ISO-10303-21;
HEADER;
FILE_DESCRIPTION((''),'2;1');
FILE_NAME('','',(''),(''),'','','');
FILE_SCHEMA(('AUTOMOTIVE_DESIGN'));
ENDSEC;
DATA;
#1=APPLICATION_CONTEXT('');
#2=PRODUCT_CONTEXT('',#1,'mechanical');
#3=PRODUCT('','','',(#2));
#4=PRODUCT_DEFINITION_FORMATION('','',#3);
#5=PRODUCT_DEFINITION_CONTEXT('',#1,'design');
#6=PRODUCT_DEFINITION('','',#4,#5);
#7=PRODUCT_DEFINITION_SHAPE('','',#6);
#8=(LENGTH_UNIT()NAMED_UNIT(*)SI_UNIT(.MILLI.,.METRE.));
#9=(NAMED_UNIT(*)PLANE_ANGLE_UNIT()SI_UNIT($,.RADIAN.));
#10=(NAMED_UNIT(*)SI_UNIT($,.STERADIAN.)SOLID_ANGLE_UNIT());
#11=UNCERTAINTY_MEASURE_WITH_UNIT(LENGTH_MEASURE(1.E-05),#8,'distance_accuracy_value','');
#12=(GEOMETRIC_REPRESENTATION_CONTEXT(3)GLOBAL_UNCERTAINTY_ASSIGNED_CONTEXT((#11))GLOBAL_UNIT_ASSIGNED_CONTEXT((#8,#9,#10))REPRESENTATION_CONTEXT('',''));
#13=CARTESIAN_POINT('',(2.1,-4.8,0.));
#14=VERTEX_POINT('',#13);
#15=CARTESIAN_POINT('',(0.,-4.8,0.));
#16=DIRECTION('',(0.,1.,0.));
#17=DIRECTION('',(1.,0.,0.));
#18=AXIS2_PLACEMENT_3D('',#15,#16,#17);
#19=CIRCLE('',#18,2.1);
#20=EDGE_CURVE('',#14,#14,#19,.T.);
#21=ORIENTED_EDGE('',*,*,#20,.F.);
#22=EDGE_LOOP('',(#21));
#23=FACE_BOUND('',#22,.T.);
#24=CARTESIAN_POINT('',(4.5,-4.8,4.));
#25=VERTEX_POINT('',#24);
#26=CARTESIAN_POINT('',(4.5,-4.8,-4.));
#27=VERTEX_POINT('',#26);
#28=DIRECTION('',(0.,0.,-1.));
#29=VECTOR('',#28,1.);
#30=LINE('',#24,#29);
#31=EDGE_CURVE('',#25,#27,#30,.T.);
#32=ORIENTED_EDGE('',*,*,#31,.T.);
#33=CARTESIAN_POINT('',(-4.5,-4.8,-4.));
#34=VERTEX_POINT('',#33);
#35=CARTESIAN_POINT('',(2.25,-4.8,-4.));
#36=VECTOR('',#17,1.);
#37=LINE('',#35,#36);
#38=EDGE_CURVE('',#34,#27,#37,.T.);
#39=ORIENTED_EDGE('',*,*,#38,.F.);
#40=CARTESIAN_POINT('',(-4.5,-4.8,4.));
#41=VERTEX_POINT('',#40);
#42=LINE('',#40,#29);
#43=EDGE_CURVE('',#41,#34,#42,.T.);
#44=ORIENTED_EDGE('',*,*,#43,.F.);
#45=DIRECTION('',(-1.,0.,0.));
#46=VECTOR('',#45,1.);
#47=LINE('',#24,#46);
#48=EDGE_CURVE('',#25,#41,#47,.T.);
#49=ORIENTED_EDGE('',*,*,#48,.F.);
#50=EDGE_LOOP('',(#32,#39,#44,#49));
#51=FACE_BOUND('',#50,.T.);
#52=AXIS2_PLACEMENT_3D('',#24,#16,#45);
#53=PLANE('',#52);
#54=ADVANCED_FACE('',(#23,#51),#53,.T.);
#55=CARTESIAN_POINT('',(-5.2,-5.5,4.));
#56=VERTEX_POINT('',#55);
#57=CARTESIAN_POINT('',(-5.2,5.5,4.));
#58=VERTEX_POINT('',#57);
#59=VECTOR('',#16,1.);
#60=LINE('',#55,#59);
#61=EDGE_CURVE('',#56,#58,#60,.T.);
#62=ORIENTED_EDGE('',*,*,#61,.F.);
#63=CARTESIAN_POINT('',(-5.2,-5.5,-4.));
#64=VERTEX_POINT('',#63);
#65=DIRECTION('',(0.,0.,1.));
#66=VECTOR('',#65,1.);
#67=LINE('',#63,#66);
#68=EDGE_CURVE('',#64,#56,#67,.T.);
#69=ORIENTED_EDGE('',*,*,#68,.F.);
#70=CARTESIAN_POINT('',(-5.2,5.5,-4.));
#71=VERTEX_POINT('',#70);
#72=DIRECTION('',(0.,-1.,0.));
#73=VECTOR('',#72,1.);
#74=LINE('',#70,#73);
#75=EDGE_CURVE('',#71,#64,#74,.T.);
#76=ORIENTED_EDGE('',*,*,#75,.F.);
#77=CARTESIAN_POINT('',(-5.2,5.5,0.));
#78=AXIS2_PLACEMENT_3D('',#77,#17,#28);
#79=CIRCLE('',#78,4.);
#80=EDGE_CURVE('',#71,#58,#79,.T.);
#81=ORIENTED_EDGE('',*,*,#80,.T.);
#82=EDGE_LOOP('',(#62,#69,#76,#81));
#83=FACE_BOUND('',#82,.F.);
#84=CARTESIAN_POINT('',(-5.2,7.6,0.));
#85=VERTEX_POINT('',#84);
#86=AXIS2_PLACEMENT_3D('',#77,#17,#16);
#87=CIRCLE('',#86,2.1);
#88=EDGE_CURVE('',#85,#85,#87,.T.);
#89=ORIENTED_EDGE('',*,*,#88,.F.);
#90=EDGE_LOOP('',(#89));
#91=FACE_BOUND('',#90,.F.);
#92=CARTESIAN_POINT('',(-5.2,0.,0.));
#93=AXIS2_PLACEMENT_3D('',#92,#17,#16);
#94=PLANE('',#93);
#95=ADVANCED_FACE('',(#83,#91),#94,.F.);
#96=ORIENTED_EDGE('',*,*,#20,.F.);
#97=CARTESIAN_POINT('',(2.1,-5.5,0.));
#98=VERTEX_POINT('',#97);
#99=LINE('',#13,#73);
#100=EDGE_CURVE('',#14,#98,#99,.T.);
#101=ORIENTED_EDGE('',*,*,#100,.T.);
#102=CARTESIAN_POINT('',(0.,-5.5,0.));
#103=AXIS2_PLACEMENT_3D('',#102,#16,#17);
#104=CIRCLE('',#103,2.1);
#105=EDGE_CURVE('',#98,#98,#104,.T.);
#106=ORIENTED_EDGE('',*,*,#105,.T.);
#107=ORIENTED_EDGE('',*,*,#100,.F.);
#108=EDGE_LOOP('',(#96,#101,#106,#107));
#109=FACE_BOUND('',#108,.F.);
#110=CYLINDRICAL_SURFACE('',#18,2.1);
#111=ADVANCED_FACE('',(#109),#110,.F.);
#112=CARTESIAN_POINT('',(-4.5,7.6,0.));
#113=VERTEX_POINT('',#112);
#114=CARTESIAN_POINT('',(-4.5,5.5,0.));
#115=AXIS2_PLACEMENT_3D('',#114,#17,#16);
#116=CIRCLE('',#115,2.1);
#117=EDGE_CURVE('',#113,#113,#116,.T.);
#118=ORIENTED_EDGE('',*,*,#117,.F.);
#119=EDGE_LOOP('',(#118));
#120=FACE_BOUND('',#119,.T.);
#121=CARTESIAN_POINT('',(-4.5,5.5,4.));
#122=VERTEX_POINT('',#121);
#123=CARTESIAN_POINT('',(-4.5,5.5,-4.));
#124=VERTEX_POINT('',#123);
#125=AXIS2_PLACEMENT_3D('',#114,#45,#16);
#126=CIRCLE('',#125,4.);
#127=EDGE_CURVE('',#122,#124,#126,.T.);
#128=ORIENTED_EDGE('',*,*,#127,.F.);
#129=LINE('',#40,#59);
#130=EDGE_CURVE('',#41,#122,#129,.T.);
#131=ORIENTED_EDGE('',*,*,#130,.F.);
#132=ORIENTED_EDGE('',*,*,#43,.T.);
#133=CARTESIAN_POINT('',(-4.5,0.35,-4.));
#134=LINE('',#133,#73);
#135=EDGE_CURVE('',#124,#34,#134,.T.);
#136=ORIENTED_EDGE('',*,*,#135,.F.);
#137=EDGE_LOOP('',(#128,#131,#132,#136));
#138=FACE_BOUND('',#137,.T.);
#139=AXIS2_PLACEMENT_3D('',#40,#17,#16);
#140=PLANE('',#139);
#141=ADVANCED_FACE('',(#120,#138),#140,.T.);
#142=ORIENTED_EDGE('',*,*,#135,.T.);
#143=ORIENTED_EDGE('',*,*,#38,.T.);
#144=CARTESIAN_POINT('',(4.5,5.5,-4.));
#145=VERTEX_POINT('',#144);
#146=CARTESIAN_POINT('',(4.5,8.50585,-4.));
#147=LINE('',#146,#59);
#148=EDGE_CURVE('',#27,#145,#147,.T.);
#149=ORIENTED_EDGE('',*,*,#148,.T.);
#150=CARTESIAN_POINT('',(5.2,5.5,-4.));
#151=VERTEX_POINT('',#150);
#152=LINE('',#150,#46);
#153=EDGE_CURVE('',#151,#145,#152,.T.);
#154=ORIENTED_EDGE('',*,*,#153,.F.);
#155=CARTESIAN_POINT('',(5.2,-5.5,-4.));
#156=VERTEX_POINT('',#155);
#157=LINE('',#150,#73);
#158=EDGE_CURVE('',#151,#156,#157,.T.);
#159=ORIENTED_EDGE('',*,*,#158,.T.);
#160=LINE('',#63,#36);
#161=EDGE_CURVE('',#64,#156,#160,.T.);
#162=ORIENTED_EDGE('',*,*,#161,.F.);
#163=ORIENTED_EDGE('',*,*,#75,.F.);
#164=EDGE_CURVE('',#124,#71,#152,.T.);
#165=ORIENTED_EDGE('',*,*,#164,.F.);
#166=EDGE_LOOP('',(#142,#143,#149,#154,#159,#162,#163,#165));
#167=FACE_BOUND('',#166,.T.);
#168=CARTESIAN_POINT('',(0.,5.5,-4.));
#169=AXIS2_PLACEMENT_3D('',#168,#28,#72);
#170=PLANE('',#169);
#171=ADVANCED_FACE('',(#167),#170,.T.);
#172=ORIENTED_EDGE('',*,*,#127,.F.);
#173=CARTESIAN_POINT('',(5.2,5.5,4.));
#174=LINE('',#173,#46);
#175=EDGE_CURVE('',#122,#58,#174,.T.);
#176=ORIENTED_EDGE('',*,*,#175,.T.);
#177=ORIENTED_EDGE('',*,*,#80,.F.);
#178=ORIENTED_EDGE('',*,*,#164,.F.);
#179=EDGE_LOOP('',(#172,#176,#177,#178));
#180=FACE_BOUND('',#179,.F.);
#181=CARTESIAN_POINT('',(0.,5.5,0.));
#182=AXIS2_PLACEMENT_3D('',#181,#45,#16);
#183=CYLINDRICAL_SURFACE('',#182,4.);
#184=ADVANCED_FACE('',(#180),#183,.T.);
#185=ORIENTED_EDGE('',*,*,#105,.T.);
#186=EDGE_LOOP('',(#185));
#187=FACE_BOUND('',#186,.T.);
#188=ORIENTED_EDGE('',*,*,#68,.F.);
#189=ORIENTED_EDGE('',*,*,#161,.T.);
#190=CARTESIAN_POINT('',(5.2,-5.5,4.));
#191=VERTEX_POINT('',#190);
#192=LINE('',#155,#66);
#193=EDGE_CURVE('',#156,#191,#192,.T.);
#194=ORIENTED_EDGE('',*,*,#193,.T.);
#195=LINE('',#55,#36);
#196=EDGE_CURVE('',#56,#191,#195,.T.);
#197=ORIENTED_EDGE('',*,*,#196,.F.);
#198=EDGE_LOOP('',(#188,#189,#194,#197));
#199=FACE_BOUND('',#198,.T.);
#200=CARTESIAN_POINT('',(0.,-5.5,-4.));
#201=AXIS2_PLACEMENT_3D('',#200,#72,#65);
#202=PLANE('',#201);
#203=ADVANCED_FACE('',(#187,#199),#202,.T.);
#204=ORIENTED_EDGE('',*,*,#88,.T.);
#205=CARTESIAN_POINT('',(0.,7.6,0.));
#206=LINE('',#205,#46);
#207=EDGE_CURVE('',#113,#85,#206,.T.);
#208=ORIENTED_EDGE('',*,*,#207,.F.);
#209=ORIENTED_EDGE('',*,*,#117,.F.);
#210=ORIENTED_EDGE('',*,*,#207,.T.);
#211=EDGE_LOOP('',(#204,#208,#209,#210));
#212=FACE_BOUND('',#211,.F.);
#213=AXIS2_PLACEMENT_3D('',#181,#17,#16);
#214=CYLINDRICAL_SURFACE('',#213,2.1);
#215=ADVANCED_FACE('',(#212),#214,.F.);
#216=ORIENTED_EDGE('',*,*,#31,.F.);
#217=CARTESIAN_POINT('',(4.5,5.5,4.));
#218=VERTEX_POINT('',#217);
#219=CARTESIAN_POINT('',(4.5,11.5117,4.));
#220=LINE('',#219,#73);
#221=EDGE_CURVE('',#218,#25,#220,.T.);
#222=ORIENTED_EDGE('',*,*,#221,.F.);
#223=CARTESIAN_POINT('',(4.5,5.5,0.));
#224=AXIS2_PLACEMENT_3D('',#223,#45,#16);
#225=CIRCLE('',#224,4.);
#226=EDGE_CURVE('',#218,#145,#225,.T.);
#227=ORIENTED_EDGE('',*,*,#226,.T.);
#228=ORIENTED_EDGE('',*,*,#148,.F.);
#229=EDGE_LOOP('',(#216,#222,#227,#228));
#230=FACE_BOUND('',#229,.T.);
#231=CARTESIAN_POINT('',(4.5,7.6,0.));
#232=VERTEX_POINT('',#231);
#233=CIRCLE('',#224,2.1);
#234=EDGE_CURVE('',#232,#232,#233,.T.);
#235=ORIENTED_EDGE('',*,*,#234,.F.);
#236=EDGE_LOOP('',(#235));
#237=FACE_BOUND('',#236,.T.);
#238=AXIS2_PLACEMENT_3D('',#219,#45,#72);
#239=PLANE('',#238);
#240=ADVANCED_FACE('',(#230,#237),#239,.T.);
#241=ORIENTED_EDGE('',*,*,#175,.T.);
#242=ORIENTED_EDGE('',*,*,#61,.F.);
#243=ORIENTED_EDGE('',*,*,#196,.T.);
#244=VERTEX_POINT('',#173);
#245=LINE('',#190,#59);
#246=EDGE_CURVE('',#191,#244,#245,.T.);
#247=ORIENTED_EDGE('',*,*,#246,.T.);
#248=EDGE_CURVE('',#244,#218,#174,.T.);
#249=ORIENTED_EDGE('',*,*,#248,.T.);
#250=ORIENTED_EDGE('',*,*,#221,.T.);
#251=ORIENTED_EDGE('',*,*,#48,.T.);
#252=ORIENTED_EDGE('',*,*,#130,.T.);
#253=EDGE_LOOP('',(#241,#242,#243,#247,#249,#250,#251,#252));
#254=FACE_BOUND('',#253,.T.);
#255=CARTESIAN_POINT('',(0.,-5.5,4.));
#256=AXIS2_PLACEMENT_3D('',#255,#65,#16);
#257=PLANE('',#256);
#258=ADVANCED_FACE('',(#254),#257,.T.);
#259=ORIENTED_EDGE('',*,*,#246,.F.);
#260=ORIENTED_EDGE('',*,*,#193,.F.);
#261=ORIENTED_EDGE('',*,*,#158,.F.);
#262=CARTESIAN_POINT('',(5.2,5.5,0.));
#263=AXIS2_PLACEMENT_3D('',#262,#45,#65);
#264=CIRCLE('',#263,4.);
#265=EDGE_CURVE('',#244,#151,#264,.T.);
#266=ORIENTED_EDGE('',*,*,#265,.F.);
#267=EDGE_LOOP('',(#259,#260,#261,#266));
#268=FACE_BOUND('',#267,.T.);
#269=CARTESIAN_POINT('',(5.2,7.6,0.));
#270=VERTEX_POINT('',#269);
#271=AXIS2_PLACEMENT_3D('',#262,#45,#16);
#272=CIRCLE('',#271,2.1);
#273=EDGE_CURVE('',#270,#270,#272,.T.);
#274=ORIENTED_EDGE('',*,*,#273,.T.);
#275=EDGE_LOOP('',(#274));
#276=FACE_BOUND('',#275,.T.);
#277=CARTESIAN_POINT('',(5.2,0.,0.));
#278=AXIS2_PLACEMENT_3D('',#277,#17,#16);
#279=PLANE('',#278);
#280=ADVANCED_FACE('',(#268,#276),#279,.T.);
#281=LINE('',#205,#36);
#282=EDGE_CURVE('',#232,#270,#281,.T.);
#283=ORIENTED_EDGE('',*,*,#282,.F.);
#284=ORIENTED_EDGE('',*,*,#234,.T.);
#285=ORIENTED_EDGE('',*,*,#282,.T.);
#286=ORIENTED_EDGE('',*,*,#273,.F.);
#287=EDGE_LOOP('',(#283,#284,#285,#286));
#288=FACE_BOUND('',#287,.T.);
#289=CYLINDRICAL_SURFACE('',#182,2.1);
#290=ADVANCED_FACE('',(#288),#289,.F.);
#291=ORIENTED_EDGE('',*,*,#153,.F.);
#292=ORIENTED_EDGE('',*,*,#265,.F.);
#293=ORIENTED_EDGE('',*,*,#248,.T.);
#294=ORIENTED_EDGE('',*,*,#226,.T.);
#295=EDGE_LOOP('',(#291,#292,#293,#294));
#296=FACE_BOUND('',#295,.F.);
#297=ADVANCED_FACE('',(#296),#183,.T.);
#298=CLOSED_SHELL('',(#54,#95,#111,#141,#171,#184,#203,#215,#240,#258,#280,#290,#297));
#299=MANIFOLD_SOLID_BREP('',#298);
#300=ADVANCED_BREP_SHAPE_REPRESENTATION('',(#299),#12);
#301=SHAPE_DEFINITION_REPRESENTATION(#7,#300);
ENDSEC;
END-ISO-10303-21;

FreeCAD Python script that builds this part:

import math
import FreeCAD as App
import Part
import Sketcher
from FreeCAD import Vector


def add_polygon(sketch, points):
    """Adds a closed chain of lines whose ends are joined by coincident constraints."""
    first, n = sketch.GeometryCount, len(points)
    for a, b in zip(points, points[1:] + points[:1]):
        sketch.addGeometry(Part.LineSegment(App.Vector(*a, 0), App.Vector(*b, 0)), False)
    for i in range(n):
        sketch.addConstraint(Sketcher.Constraint("Coincident", first + i, 2, first + (i + 1) % n, 1))

doc = App.newDocument("Part")
body = doc.addObject("PartDesign::Body", "Body")

# Sketch on YZ plane
sketch1 = doc.addObject("Sketcher::SketchObject", "Sketch")
body.addObject(sketch1)
sketch1.AttachmentSupport = (doc.YZ_Plane, [""])
sketch1.MapMode = "FlatFace"
sketch1.addGeometry(Part.LineSegment(Vector(5.5, 4, 0), Vector(-5.5, 4, 0)), False)
sketch1.addGeometry(Part.LineSegment(Vector(-5.5, 4, 0), Vector(-5.5, -4, 0)), False)
sketch1.addGeometry(Part.LineSegment(Vector(-5.5, -4, 0), Vector(5.5, -4, 0)), False)
sketch1.addGeometry(Part.ArcOfCircle(Part.Circle(Vector(5.5, 0, 0), Vector(0, 0, 1), 4), math.radians(-90), math.radians(90)), False)
sketch1.addGeometry(Part.Circle(Vector(5.5, 0, 0), Vector(0, 0, 1), 2.1), False)
sketch1.addConstraint(Sketcher.Constraint("Coincident", 0, 2, 1, 1))
sketch1.addConstraint(Sketcher.Constraint("Coincident", 1, 2, 2, 1))
sketch1.addConstraint(Sketcher.Constraint("Tangent", 2, 2, 3, 1))
sketch1.addConstraint(Sketcher.Constraint("Tangent", 3, 2, 0, 1))
sketch1.addConstraint(Sketcher.Constraint("Horizontal", 0))
sketch1.addConstraint(Sketcher.Constraint("Vertical", 1))
sketch1.addConstraint(Sketcher.Constraint("Horizontal", 2))
sketch1.addConstraint(Sketcher.Constraint("Coincident", 4, 3, 3, 3))
sketch1.addConstraint(Sketcher.Constraint("Symmetric", 0, 2, 2, 2, -1, 1))
sketch1.addConstraint(Sketcher.Constraint("Radius", 3, 4.0))
sketch1.addConstraint(Sketcher.Constraint("Diameter", 4, 4.2))
sketch1.addConstraint(Sketcher.Constraint("DistanceX", 0, 2, 0, 1, 11.0))
pad1 = doc.addObject("PartDesign::Pad", "Pad")
body.addObject(pad1)
pad1.Profile = sketch1
pad1.Length = 10.4
pad1.Midplane = True

# Sketch on XY plane
sketch2 = doc.addObject("Sketcher::SketchObject", "Sketch001")
body.addObject(sketch2)
sketch2.AttachmentSupport = (doc.XY_Plane, [""])
sketch2.MapMode = "FlatFace"
sketch2.AttachmentOffset = App.Placement(Vector(0, 0, 4), App.Rotation())
add_polygon(sketch2, [(4, 12), (-4, 12), (-4, -5), (4, -5)])  # lines 0-3
sketch2.addConstraint(Sketcher.Constraint("Horizontal", 0))
sketch2.addConstraint(Sketcher.Constraint("Vertical", 1))
sketch2.addConstraint(Sketcher.Constraint("Horizontal", 2))
sketch2.addConstraint(Sketcher.Constraint("Vertical", 3))
sketch2.addConstraint(Sketcher.Constraint("DistanceX", 0, 2, 0, 1, 9.0))
sketch2.addConstraint(Sketcher.Constraint("DistanceX", 0, 2, -1, 1, 4.5))
sketch2.addConstraint(Sketcher.Constraint("DistanceY", 1, 2, -1, 1, 4.8))
sketch2.addConstraint(Sketcher.Constraint("DistanceY", 1, 2, 1, 1, 16.3117))
pocket1 = doc.addObject("PartDesign::Pocket", "Pocket")
body.addObject(pocket1)
pocket1.Profile = sketch2
pocket1.Type = "ThroughAll"

# Sketch on XZ plane
sketch3 = doc.addObject("Sketcher::SketchObject", "Sketch002")
body.addObject(sketch3)
sketch3.AttachmentSupport = (doc.XZ_Plane, [""])
sketch3.MapMode = "FlatFace"
sketch3.AttachmentOffset = App.Placement(Vector(0, 0, 4.8), App.Rotation())
sketch3.addGeometry(Part.Circle(Vector(0, 0, 0), Vector(0, 0, 1), 2.1), False)
sketch3.addConstraint(Sketcher.Constraint("Coincident", 0, 3, -1, 1))
sketch3.addConstraint(Sketcher.Constraint("Diameter", 0, 4.2))
pocket2 = doc.addObject("PartDesign::Pocket", "Pocket001")
body.addObject(pocket2)
pocket2.Profile = sketch3
pocket2.Type = "ThroughAll"
pocket2.Reversed = True

doc.recompute()
